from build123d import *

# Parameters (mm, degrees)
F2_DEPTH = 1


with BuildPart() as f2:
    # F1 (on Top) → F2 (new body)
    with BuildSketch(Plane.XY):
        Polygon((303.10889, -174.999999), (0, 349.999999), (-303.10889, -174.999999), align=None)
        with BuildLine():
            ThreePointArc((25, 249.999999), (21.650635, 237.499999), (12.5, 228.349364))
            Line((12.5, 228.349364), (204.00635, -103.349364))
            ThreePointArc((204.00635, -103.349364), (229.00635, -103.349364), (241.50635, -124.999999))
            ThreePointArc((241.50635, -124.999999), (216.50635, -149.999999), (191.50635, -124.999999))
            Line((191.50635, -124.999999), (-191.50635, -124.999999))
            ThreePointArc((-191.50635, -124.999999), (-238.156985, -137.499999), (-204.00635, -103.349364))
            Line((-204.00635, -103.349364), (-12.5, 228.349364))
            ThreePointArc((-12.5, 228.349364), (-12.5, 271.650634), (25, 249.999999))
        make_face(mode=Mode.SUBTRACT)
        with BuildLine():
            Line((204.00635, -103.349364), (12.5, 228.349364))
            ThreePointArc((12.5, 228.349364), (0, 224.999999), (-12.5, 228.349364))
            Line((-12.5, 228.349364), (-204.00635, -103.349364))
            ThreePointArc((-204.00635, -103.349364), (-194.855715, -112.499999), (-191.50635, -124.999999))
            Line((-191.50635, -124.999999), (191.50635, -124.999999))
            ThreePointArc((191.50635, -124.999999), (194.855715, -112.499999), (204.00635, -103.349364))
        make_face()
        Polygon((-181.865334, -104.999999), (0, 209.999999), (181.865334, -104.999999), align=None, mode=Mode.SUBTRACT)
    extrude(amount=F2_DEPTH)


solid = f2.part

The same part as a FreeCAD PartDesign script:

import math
import FreeCAD as App
import Part
import Sketcher
from FreeCAD import Vector
Q = App.Units.Quantity


def add_polygon(sketch, points):
    """Adds a closed chain of lines whose ends are joined by coincident constraints."""
    first, n = sketch.GeometryCount, len(points)
    for a, b in zip(points, points[1:] + points[:1]):
        sketch.addGeometry(Part.LineSegment(App.Vector(*a, 0), App.Vector(*b, 0)), False)
    for i in range(n):
        sketch.addConstraint(Sketcher.Constraint("Coincident", first + i, 2, first + (i + 1) % n, 1))

doc = App.newDocument("Part")
body = doc.addObject("PartDesign::Body", "Body")

# Sketch on XY plane
sketch1 = body.newObject("Sketcher::SketchObject", "Sketch")
sketch1.AttachmentSupport = (doc.getObject("XY_Plane"), [""])
sketch1.MapMode = "FlatFace"
add_polygon(sketch1, [(303, -175), (0, 350), (-303, -175)])  # lines 0-2
sketch1.addGeometry(Part.ArcOfCircle(Part.Circle(Vector(-217, -125, 0), Vector(0, 0, 1), 25), math.radians(60), math.radians(360)), False)  # 3
sketch1.addGeometry(Part.ArcOfCircle(Part.Circle(Vector(-217, -125, 0), Vector(0, 0, 1), 25), math.radians(0), math.radians(60)), False)  # 4
add_polygon(sketch1, [(182, -105), (-182, -105), (0, 210)])  # lines 5-7
sketch1.addGeometry(Part.ArcOfCircle(Part.Circle(Vector(217, -125, 0), Vector(0, 0, 1), 25), math.radians(180), math.radians(360)), False)  # 8
sketch1.addGeometry(Part.ArcOfCircle(Part.Circle(Vector(217, -125, 0), Vector(0, 0, 1), 25), math.radians(120), math.radians(180)), False)  # 9
sketch1.addGeometry(Part.ArcOfCircle(Part.Circle(Vector(217, -125, 0), Vector(0, 0, 1), 25), math.radians(0), math.radians(120)), False)  # 10
sketch1.addGeometry(Part.ArcOfCircle(Part.Circle(Vector(0, 250, 0), Vector(0, 0, 1), 25), math.radians(0), math.radians(240)), False)  # 11
sketch1.addGeometry(Part.ArcOfCircle(Part.Circle(Vector(0, 250, 0), Vector(0, 0, 1), 25), math.radians(-60), math.radians(0)), False)  # 12
sketch1.addGeometry(Part.ArcOfCircle(Part.Circle(Vector(0, 250, 0), Vector(0, 0, 1), 25), math.radians(-120), math.radians(-60)), False)  # 13
sketch1.addConstraint(Sketcher.Constraint("Tangent", 3, 1, 4, 2))
sketch1.addConstraint(Sketcher.Constraint("Coincident", 4, 1, 3, 2))
sketch1.addConstraint(Sketcher.Constraint("Tangent", 8, 1, 9, 2))
sketch1.addConstraint(Sketcher.Constraint("Tangent", 9, 1, 10, 2))
sketch1.addConstraint(Sketcher.Constraint("Tangent", 10, 1, 8, 2))
sketch1.addConstraint(Sketcher.Constraint("Tangent", 11, 1, 12, 2))
sketch1.addConstraint(Sketcher.Constraint("Tangent", 12, 1, 13, 2))
sketch1.addConstraint(Sketcher.Constraint("Tangent", 13, 1, 11, 2))
sketch1.addConstraint(Sketcher.Constraint("Horizontal", 2))
sketch1.addConstraint(Sketcher.Constraint("Horizontal", 5))
sketch1.addConstraint(Sketcher.Constraint("Equal", 4, 8))
sketch1.addConstraint(Sketcher.Constraint("Equal", 10, 11))
sketch1.addConstraint(Sketcher.Constraint("Symmetric", 3, 3, 8, 3, -2))
sketch1.addConstraint(Sketcher.Constraint("Symmetric", 12, 1, 13, 1, -2))
sketch1.addConstraint(Sketcher.Constraint("PointOnObject", 0, 2, -2))
sketch1.addConstraint(Sketcher.Constraint("PointOnObject", 6, 2, -2))
sketch1.addConstraint(Sketcher.Constraint("Parallel", 1, 6))
sketch1.addConstraint(Sketcher.Constraint("Parallel", 0, 7))
sketch1.addConstraint(Sketcher.Constraint("Horizontal", 10, 3, 4, 1))
sketch1.addConstraint(Sketcher.Constraint("Horizontal", 4, 1, 8, 1))
sketch1.addConstraint(Sketcher.Constraint("Horizontal", 3, 1, 9, 1))
sketch1.addConstraint(Sketcher.Constraint("Horizontal", 8, 1, 10, 1))
sketch1.addConstraint(Sketcher.Constraint("Horizontal", 13, 3, 11, 1))
sketch1.addConstraint(Sketcher.Constraint("Equal", 0, 1))
sketch1.addConstraint(Sketcher.Constraint("Radius", 3, 25.0))
sketch1.addConstraint(Sketcher.Constraint("Angle", 0, Q("120 deg")))
sketch1.addConstraint(Sketcher.Constraint("DistanceY", 3, 3, -1, 1, 124.999999))
sketch1.addConstraint(Sketcher.Constraint("DistanceY", -1, 1, 11, 3, 249.999999))
sketch1.addConstraint(Sketcher.Constraint("DistanceY", -1, 1, 0, 2, 349.999999))
sketch1.addConstraint(Sketcher.Constraint("DistanceY", 1, 2, -1, 1, 174.999999))
sketch1.addConstraint(Sketcher.Constraint("DistanceY", 5, 2, -1, 1, 104.999999))
sketch1.addConstraint(Sketcher.Constraint("DistanceY", -1, 1, 6, 2, 209.999999))
sketch1.addConstraint(Sketcher.Constraint("DistanceX", 13, 1, 12, 1, 25.0))
sketch1.addConstraint(Sketcher.Constraint("DistanceX", 3, 3, 3, 1, 12.5))
sketch1.addConstraint(Sketcher.Constraint("DistanceX", 3, 3, 8, 3, 433.0127))
pad1 = body.newObject("PartDesign::Pad", "Pad")
pad1.Profile = sketch1
pad1.Length = 1

doc.recompute()
